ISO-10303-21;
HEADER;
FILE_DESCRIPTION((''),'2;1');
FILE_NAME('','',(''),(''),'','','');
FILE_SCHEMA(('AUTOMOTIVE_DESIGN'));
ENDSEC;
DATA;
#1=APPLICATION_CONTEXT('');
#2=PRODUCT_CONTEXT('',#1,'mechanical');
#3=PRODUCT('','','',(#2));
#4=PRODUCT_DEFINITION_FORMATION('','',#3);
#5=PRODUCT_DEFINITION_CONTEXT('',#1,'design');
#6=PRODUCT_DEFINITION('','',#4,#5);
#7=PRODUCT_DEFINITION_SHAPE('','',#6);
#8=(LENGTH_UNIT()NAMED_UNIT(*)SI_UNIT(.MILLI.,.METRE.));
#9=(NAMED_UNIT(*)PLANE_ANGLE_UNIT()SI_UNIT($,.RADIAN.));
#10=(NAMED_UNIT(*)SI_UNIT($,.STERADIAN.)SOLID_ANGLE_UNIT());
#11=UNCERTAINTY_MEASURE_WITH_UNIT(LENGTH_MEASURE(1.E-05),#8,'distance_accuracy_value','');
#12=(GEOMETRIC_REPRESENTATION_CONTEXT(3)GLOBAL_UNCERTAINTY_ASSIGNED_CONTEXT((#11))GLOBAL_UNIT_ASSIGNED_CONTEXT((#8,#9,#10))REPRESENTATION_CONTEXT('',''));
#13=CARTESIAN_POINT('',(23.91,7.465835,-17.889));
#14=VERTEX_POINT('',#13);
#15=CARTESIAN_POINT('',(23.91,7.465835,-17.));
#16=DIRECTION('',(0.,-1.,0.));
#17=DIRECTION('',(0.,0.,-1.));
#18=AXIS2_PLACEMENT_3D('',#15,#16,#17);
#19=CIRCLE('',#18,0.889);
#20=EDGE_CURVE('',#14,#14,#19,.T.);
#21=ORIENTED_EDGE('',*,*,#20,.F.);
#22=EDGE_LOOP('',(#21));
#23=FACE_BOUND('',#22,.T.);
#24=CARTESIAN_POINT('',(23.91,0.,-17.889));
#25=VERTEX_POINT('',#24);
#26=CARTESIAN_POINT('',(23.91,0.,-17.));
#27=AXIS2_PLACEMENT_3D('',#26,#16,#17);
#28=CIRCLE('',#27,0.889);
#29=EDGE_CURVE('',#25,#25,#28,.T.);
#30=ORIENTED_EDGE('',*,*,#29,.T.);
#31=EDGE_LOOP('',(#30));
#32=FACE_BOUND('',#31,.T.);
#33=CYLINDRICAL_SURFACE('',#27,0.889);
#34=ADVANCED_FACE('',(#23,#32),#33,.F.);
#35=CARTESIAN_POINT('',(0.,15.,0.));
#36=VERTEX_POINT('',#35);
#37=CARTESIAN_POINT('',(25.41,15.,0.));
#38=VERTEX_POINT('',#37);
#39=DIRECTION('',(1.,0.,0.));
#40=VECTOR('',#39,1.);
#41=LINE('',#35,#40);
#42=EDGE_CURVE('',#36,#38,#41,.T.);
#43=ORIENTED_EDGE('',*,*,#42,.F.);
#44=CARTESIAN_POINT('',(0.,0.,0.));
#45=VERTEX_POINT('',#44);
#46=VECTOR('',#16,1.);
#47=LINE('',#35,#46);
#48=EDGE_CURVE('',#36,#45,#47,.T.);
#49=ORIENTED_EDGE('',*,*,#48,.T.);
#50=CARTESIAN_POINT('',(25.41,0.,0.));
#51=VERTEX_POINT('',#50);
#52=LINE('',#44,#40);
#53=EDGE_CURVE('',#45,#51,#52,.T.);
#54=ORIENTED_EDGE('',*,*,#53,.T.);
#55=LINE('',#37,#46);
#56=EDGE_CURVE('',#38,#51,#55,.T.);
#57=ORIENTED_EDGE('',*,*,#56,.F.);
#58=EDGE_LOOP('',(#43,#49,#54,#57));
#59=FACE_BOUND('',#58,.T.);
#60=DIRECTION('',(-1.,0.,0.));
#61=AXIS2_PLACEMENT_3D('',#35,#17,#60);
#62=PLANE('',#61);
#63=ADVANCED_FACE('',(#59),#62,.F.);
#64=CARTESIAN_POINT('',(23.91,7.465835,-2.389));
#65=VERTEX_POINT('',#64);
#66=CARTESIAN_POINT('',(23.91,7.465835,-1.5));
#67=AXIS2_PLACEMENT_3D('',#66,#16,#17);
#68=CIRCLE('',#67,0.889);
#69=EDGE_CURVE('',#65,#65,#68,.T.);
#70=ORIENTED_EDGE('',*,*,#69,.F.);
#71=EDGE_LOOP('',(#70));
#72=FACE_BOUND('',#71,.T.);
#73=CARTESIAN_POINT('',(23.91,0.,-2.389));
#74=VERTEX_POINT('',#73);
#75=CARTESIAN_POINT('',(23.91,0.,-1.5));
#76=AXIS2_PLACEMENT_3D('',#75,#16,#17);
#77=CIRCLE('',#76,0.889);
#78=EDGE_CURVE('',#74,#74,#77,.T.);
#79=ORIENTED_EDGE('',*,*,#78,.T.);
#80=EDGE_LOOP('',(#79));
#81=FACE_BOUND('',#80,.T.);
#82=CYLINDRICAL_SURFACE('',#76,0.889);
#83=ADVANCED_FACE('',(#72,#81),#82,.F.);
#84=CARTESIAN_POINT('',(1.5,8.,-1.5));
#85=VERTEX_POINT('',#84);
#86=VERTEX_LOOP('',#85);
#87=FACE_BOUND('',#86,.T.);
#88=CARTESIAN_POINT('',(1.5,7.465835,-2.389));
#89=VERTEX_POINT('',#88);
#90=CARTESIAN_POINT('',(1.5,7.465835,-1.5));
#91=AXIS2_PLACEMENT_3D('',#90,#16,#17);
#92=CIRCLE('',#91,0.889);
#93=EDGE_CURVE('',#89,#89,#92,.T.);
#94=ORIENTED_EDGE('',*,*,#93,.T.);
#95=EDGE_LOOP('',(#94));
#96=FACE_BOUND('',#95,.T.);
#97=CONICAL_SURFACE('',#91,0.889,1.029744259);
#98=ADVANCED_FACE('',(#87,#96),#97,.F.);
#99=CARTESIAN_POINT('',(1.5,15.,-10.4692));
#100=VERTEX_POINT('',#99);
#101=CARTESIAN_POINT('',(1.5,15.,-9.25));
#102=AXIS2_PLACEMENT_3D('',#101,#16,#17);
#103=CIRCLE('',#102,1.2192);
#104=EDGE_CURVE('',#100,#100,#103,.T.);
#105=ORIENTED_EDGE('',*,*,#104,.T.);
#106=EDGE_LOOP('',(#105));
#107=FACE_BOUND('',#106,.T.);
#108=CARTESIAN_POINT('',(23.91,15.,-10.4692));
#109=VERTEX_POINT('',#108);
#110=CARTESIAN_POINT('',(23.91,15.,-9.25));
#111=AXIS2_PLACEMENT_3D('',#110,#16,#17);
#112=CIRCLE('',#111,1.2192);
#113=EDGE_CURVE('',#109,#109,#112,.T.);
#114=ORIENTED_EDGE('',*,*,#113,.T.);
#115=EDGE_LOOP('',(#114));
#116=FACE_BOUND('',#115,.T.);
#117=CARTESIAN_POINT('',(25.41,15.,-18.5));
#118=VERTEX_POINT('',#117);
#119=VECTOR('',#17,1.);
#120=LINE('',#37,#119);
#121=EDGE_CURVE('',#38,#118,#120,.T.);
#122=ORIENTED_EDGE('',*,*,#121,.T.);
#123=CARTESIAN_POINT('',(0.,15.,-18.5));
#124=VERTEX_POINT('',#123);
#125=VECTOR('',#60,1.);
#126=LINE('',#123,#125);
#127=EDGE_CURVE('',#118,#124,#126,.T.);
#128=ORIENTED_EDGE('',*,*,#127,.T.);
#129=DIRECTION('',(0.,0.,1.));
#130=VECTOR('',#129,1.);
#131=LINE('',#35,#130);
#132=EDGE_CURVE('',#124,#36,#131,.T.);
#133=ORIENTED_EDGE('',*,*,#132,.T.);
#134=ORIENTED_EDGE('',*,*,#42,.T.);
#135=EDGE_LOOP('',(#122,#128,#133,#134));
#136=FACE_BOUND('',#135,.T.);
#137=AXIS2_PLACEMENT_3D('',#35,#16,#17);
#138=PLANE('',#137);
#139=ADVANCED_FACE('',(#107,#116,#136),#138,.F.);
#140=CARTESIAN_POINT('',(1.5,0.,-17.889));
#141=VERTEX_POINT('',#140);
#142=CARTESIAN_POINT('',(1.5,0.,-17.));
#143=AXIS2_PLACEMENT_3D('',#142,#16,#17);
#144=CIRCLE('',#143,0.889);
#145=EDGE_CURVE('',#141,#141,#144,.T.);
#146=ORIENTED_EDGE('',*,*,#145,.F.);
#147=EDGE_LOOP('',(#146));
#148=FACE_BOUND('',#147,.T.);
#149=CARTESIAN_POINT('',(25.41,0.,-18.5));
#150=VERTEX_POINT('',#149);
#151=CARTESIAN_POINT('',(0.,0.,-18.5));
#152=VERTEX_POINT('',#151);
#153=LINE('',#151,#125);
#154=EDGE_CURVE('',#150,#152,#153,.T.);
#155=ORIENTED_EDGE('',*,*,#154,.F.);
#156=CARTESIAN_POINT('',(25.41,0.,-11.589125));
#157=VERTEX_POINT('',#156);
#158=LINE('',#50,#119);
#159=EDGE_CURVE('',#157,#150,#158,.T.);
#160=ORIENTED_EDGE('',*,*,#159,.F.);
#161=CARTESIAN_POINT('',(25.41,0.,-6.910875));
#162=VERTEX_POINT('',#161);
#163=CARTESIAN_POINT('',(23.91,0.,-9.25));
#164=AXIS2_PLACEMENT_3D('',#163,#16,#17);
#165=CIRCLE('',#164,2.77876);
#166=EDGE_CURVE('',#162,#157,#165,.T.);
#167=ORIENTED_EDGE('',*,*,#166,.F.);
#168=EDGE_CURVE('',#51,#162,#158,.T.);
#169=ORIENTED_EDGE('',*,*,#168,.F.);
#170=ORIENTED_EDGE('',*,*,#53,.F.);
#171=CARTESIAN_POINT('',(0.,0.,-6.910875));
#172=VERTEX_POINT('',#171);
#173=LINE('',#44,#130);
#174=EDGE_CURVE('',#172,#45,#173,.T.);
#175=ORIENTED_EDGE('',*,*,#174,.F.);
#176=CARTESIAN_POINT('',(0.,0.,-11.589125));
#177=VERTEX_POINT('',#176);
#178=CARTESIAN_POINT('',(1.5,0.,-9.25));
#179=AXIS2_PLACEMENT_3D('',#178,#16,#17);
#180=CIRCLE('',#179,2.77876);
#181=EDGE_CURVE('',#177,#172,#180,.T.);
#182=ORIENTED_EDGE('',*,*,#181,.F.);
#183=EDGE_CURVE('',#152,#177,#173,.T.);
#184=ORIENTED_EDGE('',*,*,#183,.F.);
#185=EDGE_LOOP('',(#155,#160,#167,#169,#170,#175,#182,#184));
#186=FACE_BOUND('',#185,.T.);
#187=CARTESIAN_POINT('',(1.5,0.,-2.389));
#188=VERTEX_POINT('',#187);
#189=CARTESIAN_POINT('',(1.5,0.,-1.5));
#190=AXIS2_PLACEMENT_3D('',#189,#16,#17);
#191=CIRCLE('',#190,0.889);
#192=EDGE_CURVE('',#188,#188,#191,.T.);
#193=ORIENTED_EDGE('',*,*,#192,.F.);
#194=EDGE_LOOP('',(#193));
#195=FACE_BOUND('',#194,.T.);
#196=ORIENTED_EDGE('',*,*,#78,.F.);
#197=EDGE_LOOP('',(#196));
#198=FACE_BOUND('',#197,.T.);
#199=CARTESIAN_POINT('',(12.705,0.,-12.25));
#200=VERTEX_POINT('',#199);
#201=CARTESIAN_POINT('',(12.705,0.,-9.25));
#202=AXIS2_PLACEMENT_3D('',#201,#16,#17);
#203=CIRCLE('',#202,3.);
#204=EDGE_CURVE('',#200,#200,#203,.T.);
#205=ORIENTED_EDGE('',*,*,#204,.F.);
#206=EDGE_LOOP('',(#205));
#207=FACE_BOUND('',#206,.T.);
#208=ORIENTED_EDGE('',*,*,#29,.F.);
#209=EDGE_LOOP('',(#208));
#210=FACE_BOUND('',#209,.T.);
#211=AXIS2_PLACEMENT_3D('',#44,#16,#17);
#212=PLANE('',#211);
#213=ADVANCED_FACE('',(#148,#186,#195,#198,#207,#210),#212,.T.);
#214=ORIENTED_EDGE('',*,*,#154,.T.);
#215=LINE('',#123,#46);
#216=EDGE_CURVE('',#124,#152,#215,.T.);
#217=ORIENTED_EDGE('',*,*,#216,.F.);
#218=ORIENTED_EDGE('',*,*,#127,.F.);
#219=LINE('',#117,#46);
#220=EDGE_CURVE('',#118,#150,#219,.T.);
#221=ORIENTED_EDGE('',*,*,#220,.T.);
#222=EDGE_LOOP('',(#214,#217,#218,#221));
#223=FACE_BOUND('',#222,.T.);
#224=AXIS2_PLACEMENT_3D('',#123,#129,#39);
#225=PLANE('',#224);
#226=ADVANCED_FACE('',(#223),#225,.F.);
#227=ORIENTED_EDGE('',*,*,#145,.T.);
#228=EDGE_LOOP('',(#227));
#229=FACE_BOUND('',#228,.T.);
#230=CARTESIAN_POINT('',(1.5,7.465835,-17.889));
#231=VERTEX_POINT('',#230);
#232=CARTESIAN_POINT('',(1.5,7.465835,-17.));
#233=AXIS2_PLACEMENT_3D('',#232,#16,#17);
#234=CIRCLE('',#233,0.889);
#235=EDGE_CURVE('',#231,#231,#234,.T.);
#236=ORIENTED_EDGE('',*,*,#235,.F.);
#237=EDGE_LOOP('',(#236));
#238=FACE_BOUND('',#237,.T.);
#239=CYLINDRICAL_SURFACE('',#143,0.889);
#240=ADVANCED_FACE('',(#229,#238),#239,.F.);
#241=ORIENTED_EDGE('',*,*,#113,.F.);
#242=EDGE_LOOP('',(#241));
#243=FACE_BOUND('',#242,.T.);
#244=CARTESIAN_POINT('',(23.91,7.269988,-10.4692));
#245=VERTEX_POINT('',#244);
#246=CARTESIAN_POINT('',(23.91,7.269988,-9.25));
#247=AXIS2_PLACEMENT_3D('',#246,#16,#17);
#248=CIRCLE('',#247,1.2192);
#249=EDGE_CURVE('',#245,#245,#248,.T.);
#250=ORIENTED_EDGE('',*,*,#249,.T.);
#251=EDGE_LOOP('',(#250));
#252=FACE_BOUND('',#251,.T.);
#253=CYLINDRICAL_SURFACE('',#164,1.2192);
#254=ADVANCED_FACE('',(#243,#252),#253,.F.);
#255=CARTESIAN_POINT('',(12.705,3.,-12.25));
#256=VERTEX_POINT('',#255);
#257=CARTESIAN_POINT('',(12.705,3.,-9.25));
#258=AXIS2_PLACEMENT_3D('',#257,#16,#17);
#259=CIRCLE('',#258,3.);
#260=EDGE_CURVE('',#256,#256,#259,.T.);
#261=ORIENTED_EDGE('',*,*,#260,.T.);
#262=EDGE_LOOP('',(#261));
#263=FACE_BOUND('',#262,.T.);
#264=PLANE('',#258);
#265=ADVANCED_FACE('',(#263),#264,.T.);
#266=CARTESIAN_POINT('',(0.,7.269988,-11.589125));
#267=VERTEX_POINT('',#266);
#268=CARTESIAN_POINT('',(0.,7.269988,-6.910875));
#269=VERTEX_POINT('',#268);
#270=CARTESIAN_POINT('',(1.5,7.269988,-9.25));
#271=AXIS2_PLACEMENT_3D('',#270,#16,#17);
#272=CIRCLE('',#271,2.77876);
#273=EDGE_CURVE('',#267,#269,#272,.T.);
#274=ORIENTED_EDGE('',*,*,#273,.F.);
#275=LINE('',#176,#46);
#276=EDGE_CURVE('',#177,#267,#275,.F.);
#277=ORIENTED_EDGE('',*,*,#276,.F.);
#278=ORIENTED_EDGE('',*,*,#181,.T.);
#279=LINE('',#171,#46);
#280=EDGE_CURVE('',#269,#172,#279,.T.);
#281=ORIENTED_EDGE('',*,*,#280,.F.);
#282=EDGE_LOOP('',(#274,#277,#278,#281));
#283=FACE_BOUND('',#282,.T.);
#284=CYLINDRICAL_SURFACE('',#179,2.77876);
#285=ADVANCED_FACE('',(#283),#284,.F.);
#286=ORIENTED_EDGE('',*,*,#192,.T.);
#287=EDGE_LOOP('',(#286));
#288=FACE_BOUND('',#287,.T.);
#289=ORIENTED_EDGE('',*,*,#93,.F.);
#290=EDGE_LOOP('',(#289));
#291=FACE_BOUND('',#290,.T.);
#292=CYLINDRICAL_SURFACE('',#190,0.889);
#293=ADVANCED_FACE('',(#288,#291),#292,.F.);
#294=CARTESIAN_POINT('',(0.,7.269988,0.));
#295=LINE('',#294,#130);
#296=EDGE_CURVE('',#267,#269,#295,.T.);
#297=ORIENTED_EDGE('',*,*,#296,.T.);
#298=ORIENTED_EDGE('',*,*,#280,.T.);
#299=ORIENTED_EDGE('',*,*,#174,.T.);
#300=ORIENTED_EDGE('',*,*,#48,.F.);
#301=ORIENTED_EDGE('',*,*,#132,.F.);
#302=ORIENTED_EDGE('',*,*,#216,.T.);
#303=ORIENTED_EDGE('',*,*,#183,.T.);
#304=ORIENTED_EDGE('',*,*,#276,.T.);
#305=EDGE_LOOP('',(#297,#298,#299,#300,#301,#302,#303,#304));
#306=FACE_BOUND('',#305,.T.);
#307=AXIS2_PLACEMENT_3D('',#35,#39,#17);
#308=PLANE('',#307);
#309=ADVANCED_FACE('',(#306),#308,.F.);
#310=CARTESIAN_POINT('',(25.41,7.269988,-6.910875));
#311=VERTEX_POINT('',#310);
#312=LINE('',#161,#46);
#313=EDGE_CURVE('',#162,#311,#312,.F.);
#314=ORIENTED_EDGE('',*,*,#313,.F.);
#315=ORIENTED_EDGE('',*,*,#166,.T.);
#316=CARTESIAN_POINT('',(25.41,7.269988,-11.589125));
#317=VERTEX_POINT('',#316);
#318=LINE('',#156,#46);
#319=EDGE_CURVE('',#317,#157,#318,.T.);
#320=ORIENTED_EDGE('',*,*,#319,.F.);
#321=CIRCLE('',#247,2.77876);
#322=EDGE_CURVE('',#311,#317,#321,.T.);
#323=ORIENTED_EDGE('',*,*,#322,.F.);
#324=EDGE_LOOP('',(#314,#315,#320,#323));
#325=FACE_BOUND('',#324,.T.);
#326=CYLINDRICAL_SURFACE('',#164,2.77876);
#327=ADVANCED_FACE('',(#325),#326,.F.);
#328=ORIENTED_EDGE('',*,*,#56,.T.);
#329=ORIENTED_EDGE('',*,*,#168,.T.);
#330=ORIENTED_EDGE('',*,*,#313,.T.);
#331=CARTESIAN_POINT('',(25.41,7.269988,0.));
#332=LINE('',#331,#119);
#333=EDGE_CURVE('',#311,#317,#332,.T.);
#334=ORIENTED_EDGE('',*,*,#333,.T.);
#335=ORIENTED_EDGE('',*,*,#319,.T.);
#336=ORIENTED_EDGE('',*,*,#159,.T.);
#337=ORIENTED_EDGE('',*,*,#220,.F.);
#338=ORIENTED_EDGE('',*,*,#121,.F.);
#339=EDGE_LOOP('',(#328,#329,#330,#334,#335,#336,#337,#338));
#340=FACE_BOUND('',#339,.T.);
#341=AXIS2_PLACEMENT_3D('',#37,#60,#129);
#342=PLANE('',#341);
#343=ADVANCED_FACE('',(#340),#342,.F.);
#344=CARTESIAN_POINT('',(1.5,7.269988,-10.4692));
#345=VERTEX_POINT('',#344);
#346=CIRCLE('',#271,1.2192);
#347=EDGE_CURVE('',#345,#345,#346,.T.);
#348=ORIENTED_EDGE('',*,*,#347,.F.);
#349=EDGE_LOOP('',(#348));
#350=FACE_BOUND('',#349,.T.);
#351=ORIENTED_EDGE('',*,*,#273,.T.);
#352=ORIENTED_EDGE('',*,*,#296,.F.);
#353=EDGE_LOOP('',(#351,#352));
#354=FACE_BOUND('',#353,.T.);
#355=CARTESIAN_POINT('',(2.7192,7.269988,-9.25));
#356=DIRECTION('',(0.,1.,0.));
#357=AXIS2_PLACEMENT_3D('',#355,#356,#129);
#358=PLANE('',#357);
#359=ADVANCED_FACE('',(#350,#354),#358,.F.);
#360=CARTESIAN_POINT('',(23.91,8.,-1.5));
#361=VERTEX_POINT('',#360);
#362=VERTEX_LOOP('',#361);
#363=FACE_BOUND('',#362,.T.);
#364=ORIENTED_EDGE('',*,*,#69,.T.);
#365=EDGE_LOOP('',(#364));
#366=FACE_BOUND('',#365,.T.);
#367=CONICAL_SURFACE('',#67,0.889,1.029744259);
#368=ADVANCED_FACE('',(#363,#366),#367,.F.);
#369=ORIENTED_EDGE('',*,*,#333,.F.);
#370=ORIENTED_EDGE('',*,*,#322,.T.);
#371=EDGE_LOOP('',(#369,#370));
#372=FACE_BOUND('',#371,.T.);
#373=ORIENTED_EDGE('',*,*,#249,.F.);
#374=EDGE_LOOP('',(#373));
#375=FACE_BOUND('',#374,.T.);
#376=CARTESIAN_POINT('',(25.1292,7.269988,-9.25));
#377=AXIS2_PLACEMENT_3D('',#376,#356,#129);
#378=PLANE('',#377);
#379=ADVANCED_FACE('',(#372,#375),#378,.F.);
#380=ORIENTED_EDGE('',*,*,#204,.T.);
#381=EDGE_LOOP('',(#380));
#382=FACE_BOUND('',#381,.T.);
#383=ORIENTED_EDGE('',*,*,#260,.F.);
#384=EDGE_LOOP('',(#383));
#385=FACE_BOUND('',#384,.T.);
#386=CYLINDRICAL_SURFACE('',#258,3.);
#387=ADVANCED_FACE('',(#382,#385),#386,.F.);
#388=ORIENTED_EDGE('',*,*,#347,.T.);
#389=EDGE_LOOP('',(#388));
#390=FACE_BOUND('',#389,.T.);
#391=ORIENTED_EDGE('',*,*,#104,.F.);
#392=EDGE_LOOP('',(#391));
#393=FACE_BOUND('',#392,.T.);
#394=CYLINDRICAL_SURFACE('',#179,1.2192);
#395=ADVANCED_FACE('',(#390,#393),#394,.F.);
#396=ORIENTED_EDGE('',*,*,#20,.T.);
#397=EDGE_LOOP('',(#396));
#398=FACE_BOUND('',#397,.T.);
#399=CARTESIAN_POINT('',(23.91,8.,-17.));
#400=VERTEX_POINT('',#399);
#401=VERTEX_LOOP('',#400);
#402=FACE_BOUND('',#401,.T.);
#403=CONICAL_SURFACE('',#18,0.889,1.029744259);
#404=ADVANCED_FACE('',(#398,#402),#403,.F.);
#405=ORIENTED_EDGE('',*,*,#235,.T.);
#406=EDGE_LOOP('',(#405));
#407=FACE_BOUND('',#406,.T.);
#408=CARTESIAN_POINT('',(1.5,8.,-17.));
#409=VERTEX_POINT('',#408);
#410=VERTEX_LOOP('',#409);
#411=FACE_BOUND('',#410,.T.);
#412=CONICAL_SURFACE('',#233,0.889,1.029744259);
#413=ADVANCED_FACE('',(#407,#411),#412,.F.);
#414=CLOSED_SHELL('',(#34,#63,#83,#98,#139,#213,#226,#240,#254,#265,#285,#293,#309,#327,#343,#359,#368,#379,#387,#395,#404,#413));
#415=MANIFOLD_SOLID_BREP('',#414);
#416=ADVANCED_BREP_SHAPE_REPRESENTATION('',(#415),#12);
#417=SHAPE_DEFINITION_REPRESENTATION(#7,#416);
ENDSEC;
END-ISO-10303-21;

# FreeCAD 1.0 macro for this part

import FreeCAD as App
import Part
import Sketcher
from FreeCAD import Vector


def add_polygon(sketch, points):
    """Adds a closed chain of lines whose ends are joined by coincident constraints."""
    first, n = sketch.GeometryCount, len(points)
    for a, b in zip(points, points[1:] + points[:1]):
        sketch.addGeometry(Part.LineSegment(App.Vector(*a, 0), App.Vector(*b, 0)), False)
    for i in range(n):
        sketch.addConstraint(Sketcher.Constraint("Coincident", first + i, 2, first + (i + 1) % n, 1))

doc = App.newDocument("Part")
body = doc.addObject("PartDesign::Body", "Body")

# Sketch on XZ plane
sketch1 = doc.addObject("Sketcher::SketchObject", "Sketch")
body.addObject(sketch1)
sketch1.AttachmentSupport = (doc.XZ_Plane, [""])
sketch1.MapMode = "FlatFace"
add_polygon(sketch1, [(0, -18), (0, 0), (25, 0), (25, -18)])  # lines 0-3
sketch1.addConstraint([
    Sketcher.Constraint("Vertical", 0),
    Sketcher.Constraint("Horizontal", 1),
    Sketcher.Constraint("Vertical", 2),
    Sketcher.Constraint("Horizontal", 3),
    Sketcher.Constraint("Coincident", 0, 2, -1, 1),
    Sketcher.Constraint("DistanceY", 0, 1, 0, 2, 18.5),
    Sketcher.Constraint("DistanceX", 1, 1, 1, 2, 25.41),
])
pad1 = doc.addObject("PartDesign::Pad", "Pad")
body.addObject(pad1)
pad1.Profile = sketch1
pad1.Length = 15
pad1.Reversed = True

# Sketch on XZ plane
sketch2 = doc.addObject("Sketcher::SketchObject", "Sketch001")
body.addObject(sketch2)
sketch2.AttachmentSupport = (doc.XZ_Plane, [""])
sketch2.MapMode = "FlatFace"
sketch2.addGeometry([
    Part.Circle(Vector(23.9, -17, 0), Vector(0, 0, 1), 0.9),
    Part.Circle(Vector(23.9, -1.5, 0), Vector(0, 0, 1), 0.9),
    Part.Circle(Vector(1.5, -1.5, 0), Vector(0, 0, 1), 0.9),
    Part.Circle(Vector(1.5, -17, 0), Vector(0, 0, 1), 0.9),
], False)
sketch2.addConstraint([
    Sketcher.Constraint("Equal", 0, 1),
    Sketcher.Constraint("Equal", 1, 2),
    Sketcher.Constraint("Equal", 2, 3),
    Sketcher.Constraint("Horizontal", 1, 3, 2, 3),
    Sketcher.Constraint("Horizontal", 0, 3, 3, 3),
    Sketcher.Constraint("Vertical", 0, 3, 1, 3),
    Sketcher.Constraint("Vertical", 2, 3, 3, 3),
    Sketcher.Constraint("Diameter", 0, 1.778),
    Sketcher.Constraint("DistanceY", 0, 3, -1, 1, 17.0),
    Sketcher.Constraint("DistanceY", 1, 3, -1, 1, 1.5),
    Sketcher.Constraint("DistanceX", -1, 1, 2, 3, 1.5),
    Sketcher.Constraint("DistanceX", -1, 1, 0, 3, 23.91),
])
doc.recompute()
hole = doc.addObject("PartDesign::Hole", "Hole")
body.addObject(hole)
hole.Profile = sketch2
hole.ThreadType = "None"
hole.Diameter = 1.778
hole.DepthType = "Dimension"
hole.Depth = 7.465835
hole.DrillPoint = "Angled"
hole.DrillPointAngle = 118

# Sketch on XZ plane
sketch3 = doc.addObject("Sketcher::SketchObject", "Sketch002")
body.addObject(sketch3)
sketch3.AttachmentSupport = (doc.XZ_Plane, [""])
sketch3.MapMode = "FlatFace"
sketch3.addGeometry(Part.Circle(Vector(12.7, -9.2, 0), Vector(0, 0, 1), 3), False)
sketch3.addConstraint([
    Sketcher.Constraint("Diameter", 0, 6.0),
    Sketcher.Constraint("DistanceY", 0, 3, -1, 1, 9.25),
    Sketcher.Constraint("DistanceX", -1, 1, 0, 3, 12.705),
])
pocket1 = doc.addObject("PartDesign::Pocket", "Pocket")
body.addObject(pocket1)
pocket1.Profile = sketch3
pocket1.Length = 3

# Sketch on XZ plane
sketch4 = doc.addObject("Sketcher::SketchObject", "Sketch003")
body.addObject(sketch4)
sketch4.AttachmentSupport = (doc.XZ_Plane, [""])
sketch4.MapMode = "FlatFace"
sketch4.addGeometry([
    Part.Circle(Vector(23.9, -9.2, 0), Vector(0, 0, 1), 1.2),
    Part.Circle(Vector(1.5, -9.2, 0), Vector(0, 0, 1), 1.2),
], False)
sketch4.addConstraint([
    Sketcher.Constraint("Equal", 0, 1),
    Sketcher.Constraint("Horizontal", 0, 3, 1, 3),
    Sketcher.Constraint("Diameter", 0, 2.4384),
    Sketcher.Constraint("DistanceX", -1, 1, 1, 3, 1.5),
    Sketcher.Constraint("DistanceX", -1, 1, 0, 3, 23.91),
    Sketcher.Constraint("DistanceY", 0, 3, -1, 1, 9.25),
])
doc.recompute()
hole2 = doc.addObject("PartDesign::Hole", "Hole001")
body.addObject(hole2)
hole2.Profile = sketch4
hole2.ThreadType = "None"
hole2.Diameter = 2.4384
hole2.DepthType = "ThroughAll"
hole2.HoleCutType = "Counterbore"
hole2.HoleCutDiameter = 5.55752
hole2.HoleCutDepth = 7.269988

doc.recompute()
